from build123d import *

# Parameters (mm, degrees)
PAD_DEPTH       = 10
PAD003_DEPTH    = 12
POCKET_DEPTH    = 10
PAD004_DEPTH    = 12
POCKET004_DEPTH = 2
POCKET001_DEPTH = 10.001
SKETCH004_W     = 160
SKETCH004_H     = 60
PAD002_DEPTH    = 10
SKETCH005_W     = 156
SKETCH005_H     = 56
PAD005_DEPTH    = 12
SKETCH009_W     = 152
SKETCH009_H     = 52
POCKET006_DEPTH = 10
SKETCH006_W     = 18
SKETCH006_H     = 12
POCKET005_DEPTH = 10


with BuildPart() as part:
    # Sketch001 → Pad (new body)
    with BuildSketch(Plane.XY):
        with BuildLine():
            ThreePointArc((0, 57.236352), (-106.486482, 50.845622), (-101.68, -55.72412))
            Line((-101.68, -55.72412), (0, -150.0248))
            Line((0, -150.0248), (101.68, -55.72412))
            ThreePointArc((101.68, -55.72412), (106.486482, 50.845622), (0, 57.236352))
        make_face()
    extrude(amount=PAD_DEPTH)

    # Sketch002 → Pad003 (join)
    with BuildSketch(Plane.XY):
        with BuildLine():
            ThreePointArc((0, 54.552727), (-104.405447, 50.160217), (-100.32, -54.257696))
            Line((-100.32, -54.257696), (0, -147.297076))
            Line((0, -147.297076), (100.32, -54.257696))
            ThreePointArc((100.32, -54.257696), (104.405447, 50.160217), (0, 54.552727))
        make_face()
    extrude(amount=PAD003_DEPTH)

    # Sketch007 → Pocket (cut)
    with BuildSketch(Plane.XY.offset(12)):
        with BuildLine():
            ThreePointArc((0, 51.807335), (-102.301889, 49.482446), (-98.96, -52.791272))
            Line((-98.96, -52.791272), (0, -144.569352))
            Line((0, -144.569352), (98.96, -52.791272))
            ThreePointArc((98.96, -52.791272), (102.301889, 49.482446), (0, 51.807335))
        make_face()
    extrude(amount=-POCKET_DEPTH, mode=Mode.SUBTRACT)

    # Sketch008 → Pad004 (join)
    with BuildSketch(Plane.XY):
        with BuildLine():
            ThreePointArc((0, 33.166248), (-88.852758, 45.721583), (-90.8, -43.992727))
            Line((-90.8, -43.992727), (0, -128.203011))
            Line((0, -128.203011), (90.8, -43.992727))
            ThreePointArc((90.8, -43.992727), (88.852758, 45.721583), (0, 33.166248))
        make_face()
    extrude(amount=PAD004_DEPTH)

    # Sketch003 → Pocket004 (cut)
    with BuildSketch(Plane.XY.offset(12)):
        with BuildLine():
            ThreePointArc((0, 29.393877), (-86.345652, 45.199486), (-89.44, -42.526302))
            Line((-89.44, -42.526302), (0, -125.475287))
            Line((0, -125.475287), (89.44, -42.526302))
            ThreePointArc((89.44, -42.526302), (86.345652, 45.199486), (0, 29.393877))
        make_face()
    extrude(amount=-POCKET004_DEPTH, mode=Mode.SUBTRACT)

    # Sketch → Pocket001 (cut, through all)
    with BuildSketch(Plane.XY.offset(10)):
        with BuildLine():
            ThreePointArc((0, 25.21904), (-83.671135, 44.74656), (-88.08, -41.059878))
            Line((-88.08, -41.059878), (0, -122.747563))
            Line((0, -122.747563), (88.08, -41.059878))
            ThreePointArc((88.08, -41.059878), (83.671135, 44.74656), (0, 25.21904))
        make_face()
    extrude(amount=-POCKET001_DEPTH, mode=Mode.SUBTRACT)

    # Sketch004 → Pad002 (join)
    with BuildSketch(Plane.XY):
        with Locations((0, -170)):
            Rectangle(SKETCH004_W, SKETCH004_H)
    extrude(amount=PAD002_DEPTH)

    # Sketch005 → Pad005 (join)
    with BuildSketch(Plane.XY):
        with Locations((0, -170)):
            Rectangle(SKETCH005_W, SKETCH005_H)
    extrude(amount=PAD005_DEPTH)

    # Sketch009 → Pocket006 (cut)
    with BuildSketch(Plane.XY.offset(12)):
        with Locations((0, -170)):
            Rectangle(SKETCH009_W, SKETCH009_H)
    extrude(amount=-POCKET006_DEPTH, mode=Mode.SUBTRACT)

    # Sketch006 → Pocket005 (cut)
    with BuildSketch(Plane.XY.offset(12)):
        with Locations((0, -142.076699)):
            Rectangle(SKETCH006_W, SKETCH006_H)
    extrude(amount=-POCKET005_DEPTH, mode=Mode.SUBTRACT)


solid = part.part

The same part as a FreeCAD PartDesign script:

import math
import FreeCAD as App
import Part
import Sketcher

doc = App.newDocument("Part")
body = doc.addObject("PartDesign::Body", "Body")

sketch1 = body.newObject("Sketcher::SketchObject", "Sketch")
sketch1.AttachmentSupport = (doc.getObject("XY_Plane"), [""])
sketch1.MapMode = "FlatFace"
sketch1.addGeometry([
    Part.ArcOfCircle(Part.Circle(App.Vector(-50, 0, 0), App.Vector(0, 0, 1), 76), math.radians(49), math.radians(227)),
    Part.LineSegment(App.Vector(-102, -56, 0), App.Vector(0, -150, 0)),
    Part.LineSegment(App.Vector(0, -150, 0), App.Vector(102, -56, 0)),
    Part.ArcOfCircle(Part.Circle(App.Vector(50, 0, 0), App.Vector(0, 0, 1), 76), math.radians(-47), math.radians(131)),
], False)
sketch1.addConstraint([
    Sketcher.Constraint("Tangent", 0, 2, 1, 1),
    Sketcher.Constraint("Coincident", 1, 2, 2, 1),
    Sketcher.Constraint("Tangent", 2, 2, 3, 1),
    Sketcher.Constraint("Coincident", 3, 2, 0, 1),
    Sketcher.Constraint("Equal", 0, 3),
    Sketcher.Constraint("Symmetric", 0, 3, 3, 3, -1, 1),
    Sketcher.Constraint("Symmetric", 0, 2, 2, 2, -2),
    Sketcher.Constraint("Radius", 0, 76.0),
    Sketcher.Constraint("DistanceX", 0, 3, -1, 1, 50.0),
    Sketcher.Constraint("DistanceX", 0, 2, -1, 1, 101.68),
])
pad1 = body.newObject("PartDesign::Pad", "Pad")
pad1.Profile = sketch1
pad1.Length = 10

sketch2 = body.newObject("Sketcher::SketchObject", "Sketch001")
sketch2.AttachmentSupport = (doc.getObject("XY_Plane"), [""])
sketch2.MapMode = "FlatFace"
sketch2.addGeometry([
    Part.ArcOfCircle(Part.Circle(App.Vector(-50, 0, 0), App.Vector(0, 0, 1), 74), math.radians(47), math.radians(227)),
    Part.LineSegment(App.Vector(-100, -54, 0), App.Vector(0, -147, 0)),
    Part.LineSegment(App.Vector(0, -147, 0), App.Vector(100, -54, 0)),
    Part.ArcOfCircle(Part.Circle(App.Vector(50, 0, 0), App.Vector(0, 0, 1), 74), math.radians(-47), math.radians(133)),
], False)
sketch2.addConstraint([
    Sketcher.Constraint("Tangent", 0, 2, 1, 1),
    Sketcher.Constraint("Coincident", 1, 2, 2, 1),
    Sketcher.Constraint("Tangent", 2, 2, 3, 1),
    Sketcher.Constraint("Coincident", 3, 2, 0, 1),
    Sketcher.Constraint("Equal", 0, 3),
    Sketcher.Constraint("Symmetric", 0, 3, 3, 3, -1, 1),
    Sketcher.Constraint("Symmetric", 0, 2, 2, 2, -2),
    Sketcher.Constraint("Radius", 0, 74.0),
    Sketcher.Constraint("DistanceX", 0, 3, -1, 1, 50.0),
    Sketcher.Constraint("DistanceX", 0, 2, -1, 1, 100.32),
])
pad2 = body.newObject("PartDesign::Pad", "Pad001")
pad2.Profile = sketch2
pad2.Length = 12

sketch3 = body.newObject("Sketcher::SketchObject", "Sketch002")
sketch3.AttachmentSupport = (doc.getObject("XY_Plane"), [""])
sketch3.MapMode = "FlatFace"
sketch3.AttachmentOffset = App.Placement(App.Vector(0, 0, 12), App.Rotation())
sketch3.addGeometry([
    Part.ArcOfCircle(Part.Circle(App.Vector(-50, 0, 0), App.Vector(0, 0, 1), 72), math.radians(46), math.radians(227)),
    Part.LineSegment(App.Vector(-99, -53, 0), App.Vector(0, -145, 0)),
    Part.LineSegment(App.Vector(0, -145, 0), App.Vector(99, -53, 0)),
    Part.ArcOfCircle(Part.Circle(App.Vector(50, 0, 0), App.Vector(0, 0, 1), 72), math.radians(-47), math.radians(134)),
], False)
sketch3.addConstraint([
    Sketcher.Constraint("Tangent", 0, 2, 1, 1),
    Sketcher.Constraint("Coincident", 1, 2, 2, 1),
    Sketcher.Constraint("Tangent", 2, 2, 3, 1),
    Sketcher.Constraint("Coincident", 3, 2, 0, 1),
    Sketcher.Constraint("Equal", 0, 3),
    Sketcher.Constraint("Symmetric", 0, 3, 3, 3, -1, 1),
    Sketcher.Constraint("Symmetric", 0, 2, 2, 2, -2),
    Sketcher.Constraint("Radius", 0, 72.0),
    Sketcher.Constraint("DistanceX", 0, 3, -1, 1, 50.0),
    Sketcher.Constraint("DistanceX", 0, 2, -1, 1, 98.96),
])
pocket1 = body.newObject("PartDesign::Pocket", "Pocket")
pocket1.Profile = sketch3
pocket1.Length = 10

sketch4 = body.newObject("Sketcher::SketchObject", "Sketch003")
sketch4.AttachmentSupport = (doc.getObject("XY_Plane"), [""])
sketch4.MapMode = "FlatFace"
sketch4.addGeometry([
    Part.ArcOfCircle(Part.Circle(App.Vector(-50, 0, 0), App.Vector(0, 0, 1), 60), math.radians(34), math.radians(227)),
    Part.LineSegment(App.Vector(-91, -44, 0), App.Vector(0, -128, 0)),
    Part.LineSegment(App.Vector(0, -128, 0), App.Vector(91, -44, 0)),
    Part.ArcOfCircle(Part.Circle(App.Vector(50, 0, 0), App.Vector(0, 0, 1), 60), math.radians(-47), math.radians(146)),
], False)
sketch4.addConstraint([
    Sketcher.Constraint("Tangent", 0, 2, 1, 1),
    Sketcher.Constraint("Coincident", 1, 2, 2, 1),
    Sketcher.Constraint("Tangent", 2, 2, 3, 1),
    Sketcher.Constraint("Coincident", 3, 2, 0, 1),
    Sketcher.Constraint("Equal", 0, 3),
    Sketcher.Constraint("Symmetric", 0, 3, 3, 3, -1, 1),
    Sketcher.Constraint("Symmetric", 0, 2, 2, 2, -2),
    Sketcher.Constraint("Radius", 0, 60.0),
    Sketcher.Constraint("DistanceX", 0, 3, -1, 1, 50.0),
    Sketcher.Constraint("DistanceX", 0, 2, -1, 1, 90.8),
])
pad3 = body.newObject("PartDesign::Pad", "Pad002")
pad3.Profile = sketch4
pad3.Length = 12

sketch5 = body.newObject("Sketcher::SketchObject", "Sketch004")
sketch5.AttachmentSupport = (doc.getObject("XY_Plane"), [""])
sketch5.MapMode = "FlatFace"
sketch5.AttachmentOffset = App.Placement(App.Vector(0, 0, 12), App.Rotation())
sketch5.addGeometry([
    Part.ArcOfCircle(Part.Circle(App.Vector(-50, 0, 0), App.Vector(0, 0, 1), 58), math.radians(30), math.radians(227)),
    Part.LineSegment(App.Vector(-89, -43, 0), App.Vector(0, -125, 0)),
    Part.LineSegment(App.Vector(0, -125, 0), App.Vector(89, -43, 0)),
    Part.ArcOfCircle(Part.Circle(App.Vector(50, 0, 0), App.Vector(0, 0, 1), 58), math.radians(-47), math.radians(150)),
], False)
sketch5.addConstraint([
    Sketcher.Constraint("Tangent", 0, 2, 1, 1),
    Sketcher.Constraint("Coincident", 1, 2, 2, 1),
    Sketcher.Constraint("Tangent", 2, 2, 3, 1),
    Sketcher.Constraint("Coincident", 3, 2, 0, 1),
    Sketcher.Constraint("Equal", 0, 3),
    Sketcher.Constraint("Symmetric", 0, 3, 3, 3, -1, 1),
    Sketcher.Constraint("Symmetric", 0, 2, 2, 2, -2),
    Sketcher.Constraint("Radius", 0, 58.0),
    Sketcher.Constraint("DistanceX", 0, 3, -1, 1, 50.0),
    Sketcher.Constraint("DistanceX", 0, 2, -1, 1, 89.44),
])
pocket2 = body.newObject("PartDesign::Pocket", "Pocket001")
pocket2.Profile = sketch5
pocket2.Length = 2

sketch6 = body.newObject("Sketcher::SketchObject", "Sketch005")
sketch6.AttachmentSupport = (doc.getObject("XY_Plane"), [""])
sketch6.MapMode = "FlatFace"
sketch6.AttachmentOffset = App.Placement(App.Vector(0, 0, 10), App.Rotation())
sketch6.addGeometry([
    Part.ArcOfCircle(Part.Circle(App.Vector(-50, 0, 0), App.Vector(0, 0, 1), 56), math.radians(27), math.radians(227)),
    Part.LineSegment(App.Vector(-88, -41, 0), App.Vector(0, -123, 0)),
    Part.LineSegment(App.Vector(0, -123, 0), App.Vector(88, -41, 0)),
    Part.ArcOfCircle(Part.Circle(App.Vector(50, 0, 0), App.Vector(0, 0, 1), 56), math.radians(-47), math.radians(153)),
], False)
sketch6.addConstraint([
    Sketcher.Constraint("Tangent", 0, 2, 1, 1),
    Sketcher.Constraint("Coincident", 1, 2, 2, 1),
    Sketcher.Constraint("Tangent", 2, 2, 3, 1),
    Sketcher.Constraint("Coincident", 3, 2, 0, 1),
    Sketcher.Constraint("Equal", 0, 3),
    Sketcher.Constraint("Symmetric", 0, 3, 3, 3, -1, 1),
    Sketcher.Constraint("Symmetric", 0, 2, 2, 2, -2),
    Sketcher.Constraint("Radius", 0, 56.0),
    Sketcher.Constraint("DistanceX", 0, 3, -1, 1, 50.0),
    Sketcher.Constraint("DistanceX", 0, 2, -1, 1, 88.08),
])
pocket3 = body.newObject("PartDesign::Pocket", "Pocket002")
pocket3.Profile = sketch6
pocket3.Type = "ThroughAll"

sketch7 = body.newObject("Sketcher::SketchObject", "Sketch006")
sketch7.AttachmentSupport = (doc.getObject("XY_Plane"), [""])
sketch7.MapMode = "FlatFace"
sketch7.addGeometry([
    Part.LineSegment(App.Vector(-80, -140, 0), App.Vector(-80, -200, 0)),
    Part.LineSegment(App.Vector(-80, -200, 0), App.Vector(80, -200, 0)),
    Part.LineSegment(App.Vector(80, -200, 0), App.Vector(80, -140, 0)),
    Part.LineSegment(App.Vector(80, -140, 0), App.Vector(-80, -140, 0)),
], False)
sketch7.addConstraint([
    Sketcher.Constraint("Coincident", 0, 2, 1, 1),
    Sketcher.Constraint("Coincident", 1, 2, 2, 1),
    Sketcher.Constraint("Coincident", 2, 2, 3, 1),
    Sketcher.Constraint("Coincident", 3, 2, 0, 1),
    Sketcher.Constraint("Vertical", 0),
    Sketcher.Constraint("Horizontal", 1),
    Sketcher.Constraint("Vertical", 2),
    Sketcher.Constraint("Horizontal", 3),
    Sketcher.Constraint("DistanceX", 1, 1, 1, 2, 160.0),
    Sketcher.Constraint("DistanceY", 0, 2, 0, 1, 60.0),
    Sketcher.Constraint("DistanceX", 0, 2, -1, 1, 80.0),
    Sketcher.Constraint("DistanceY", 0, 2, -1, 1, 200.0),
])
pad4 = body.newObject("PartDesign::Pad", "Pad003")
pad4.Profile = sketch7
pad4.Length = 10

sketch8 = body.newObject("Sketcher::SketchObject", "Sketch007")
sketch8.AttachmentSupport = (doc.getObject("XY_Plane"), [""])
sketch8.MapMode = "FlatFace"
sketch8.addGeometry([
    Part.LineSegment(App.Vector(-78, -142, 0), App.Vector(-78, -198, 0)),
    Part.LineSegment(App.Vector(-78, -198, 0), App.Vector(78, -198, 0)),
    Part.LineSegment(App.Vector(78, -198, 0), App.Vector(78, -142, 0)),
    Part.LineSegment(App.Vector(78, -142, 0), App.Vector(-78, -142, 0)),
], False)
sketch8.addConstraint([
    Sketcher.Constraint("Coincident", 0, 2, 1, 1),
    Sketcher.Constraint("Coincident", 1, 2, 2, 1),
    Sketcher.Constraint("Coincident", 2, 2, 3, 1),
    Sketcher.Constraint("Coincident", 3, 2, 0, 1),
    Sketcher.Constraint("Vertical", 0),
    Sketcher.Constraint("Horizontal", 1),
    Sketcher.Constraint("Vertical", 2),
    Sketcher.Constraint("Horizontal", 3),
    Sketcher.Constraint("DistanceX", 1, 1, 1, 2, 156.0),
    Sketcher.Constraint("DistanceY", 0, 2, 0, 1, 56.0),
    Sketcher.Constraint("DistanceX", 0, 2, -1, 1, 78.0),
    Sketcher.Constraint("DistanceY", 0, 2, -1, 1, 198.0),
])
pad5 = body.newObject("PartDesign::Pad", "Pad004")
pad5.Profile = sketch8
pad5.Length = 12

sketch9 = body.newObject("Sketcher::SketchObject", "Sketch008")
sketch9.AttachmentSupport = (doc.getObject("XY_Plane"), [""])
sketch9.MapMode = "FlatFace"
sketch9.AttachmentOffset = App.Placement(App.Vector(0, 0, 12), App.Rotation())
sketch9.addGeometry([
    Part.LineSegment(App.Vector(-76, -144, 0), App.Vector(-76, -196, 0)),
    Part.LineSegment(App.Vector(-76, -196, 0), App.Vector(76, -196, 0)),
    Part.LineSegment(App.Vector(76, -196, 0), App.Vector(76, -144, 0)),
    Part.LineSegment(App.Vector(76, -144, 0), App.Vector(-76, -144, 0)),
], False)
sketch9.addConstraint([
    Sketcher.Constraint("Coincident", 0, 2, 1, 1),
    Sketcher.Constraint("Coincident", 1, 2, 2, 1),
    Sketcher.Constraint("Coincident", 2, 2, 3, 1),
    Sketcher.Constraint("Coincident", 3, 2, 0, 1),
    Sketcher.Constraint("Vertical", 0),
    Sketcher.Constraint("Horizontal", 1),
    Sketcher.Constraint("Vertical", 2),
    Sketcher.Constraint("Horizontal", 3),
    Sketcher.Constraint("DistanceX", 1, 1, 1, 2, 152.0),
    Sketcher.Constraint("DistanceY", 0, 2, 0, 1, 52.0),
    Sketcher.Constraint("DistanceX", 0, 2, -1, 1, 76.0),
    Sketcher.Constraint("DistanceY", 0, 2, -1, 1, 196.0),
])
pocket4 = body.newObject("PartDesign::Pocket", "Pocket003")
pocket4.Profile = sketch9
pocket4.Length = 10

sketch10 = body.newObject("Sketcher::SketchObject", "Sketch009")
sketch10.AttachmentSupport = (doc.getObject("XY_Plane"), [""])
sketch10.MapMode = "FlatFace"
sketch10.AttachmentOffset = App.Placement(App.Vector(0, 0, 12), App.Rotation())
sketch10.addGeometry([
    Part.LineSegment(App.Vector(-9, -136, 0), App.Vector(-9, -148, 0)),
    Part.LineSegment(App.Vector(-9, -148, 0), App.Vector(9, -148, 0)),
    Part.LineSegment(App.Vector(9, -148, 0), App.Vector(9, -136, 0)),
    Part.LineSegment(App.Vector(9, -136, 0), App.Vector(-9, -136, 0)),
], False)
sketch10.addConstraint([
    Sketcher.Constraint("Coincident", 0, 2, 1, 1),
    Sketcher.Constraint("Coincident", 1, 2, 2, 1),
    Sketcher.Constraint("Coincident", 2, 2, 3, 1),
    Sketcher.Constraint("Coincident", 3, 2, 0, 1),
    Sketcher.Constraint("Vertical", 0),
    Sketcher.Constraint("Horizontal", 1),
    Sketcher.Constraint("Vertical", 2),
    Sketcher.Constraint("Horizontal", 3),
    Sketcher.Constraint("DistanceX", 1, 1, 1, 2, 18.0),
    Sketcher.Constraint("DistanceY", 0, 2, 0, 1, 12.0),
    Sketcher.Constraint("DistanceX", 0, 2, -1, 1, 9.0),
    Sketcher.Constraint("DistanceY", 0, 2, -1, 1, 148.076699),
])
pocket5 = body.newObject("PartDesign::Pocket", "Pocket004")
pocket5.Profile = sketch10
pocket5.Length = 10

doc.recompute()
